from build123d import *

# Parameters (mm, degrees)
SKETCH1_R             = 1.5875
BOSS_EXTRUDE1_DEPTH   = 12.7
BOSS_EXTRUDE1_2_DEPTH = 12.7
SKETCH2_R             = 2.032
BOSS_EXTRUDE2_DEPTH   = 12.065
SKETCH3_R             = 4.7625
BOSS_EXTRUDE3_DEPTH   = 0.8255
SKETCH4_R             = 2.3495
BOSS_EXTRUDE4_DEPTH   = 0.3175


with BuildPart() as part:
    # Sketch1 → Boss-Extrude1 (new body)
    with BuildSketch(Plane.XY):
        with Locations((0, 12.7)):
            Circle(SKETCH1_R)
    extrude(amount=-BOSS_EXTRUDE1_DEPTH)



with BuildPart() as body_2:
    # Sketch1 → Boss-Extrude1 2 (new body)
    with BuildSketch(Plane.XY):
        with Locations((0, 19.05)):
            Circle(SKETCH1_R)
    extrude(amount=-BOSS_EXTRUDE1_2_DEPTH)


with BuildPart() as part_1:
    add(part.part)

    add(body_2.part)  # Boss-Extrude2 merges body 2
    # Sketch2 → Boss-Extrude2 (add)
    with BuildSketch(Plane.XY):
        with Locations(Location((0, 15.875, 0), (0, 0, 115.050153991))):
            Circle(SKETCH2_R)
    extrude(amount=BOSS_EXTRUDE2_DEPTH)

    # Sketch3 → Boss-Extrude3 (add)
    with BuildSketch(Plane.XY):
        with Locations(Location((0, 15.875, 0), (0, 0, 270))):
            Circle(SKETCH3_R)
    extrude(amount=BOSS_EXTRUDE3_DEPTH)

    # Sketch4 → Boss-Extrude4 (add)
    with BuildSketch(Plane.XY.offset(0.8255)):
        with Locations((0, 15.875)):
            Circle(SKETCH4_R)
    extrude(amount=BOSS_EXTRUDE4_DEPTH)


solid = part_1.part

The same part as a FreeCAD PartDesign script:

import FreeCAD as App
import Part
import Sketcher

V = App.Vector
Q = App.Units.Quantity

doc = App.newDocument("Part")
params = doc.addObject("Spreadsheet::Sheet", "Params")
for row, (alias, value) in enumerate([
    ("sketch1_diameter", "0.125 in"),
    ("pad1_length", "0.5 in"),
    ("sketch2_diameter", "0.125 in"),
    ("pad2_length", "0.5 in"),
    ("sketch3_diameter", "0.16 in"),
    ("pad3_length", "0.475 in"),
    ("sketch4_diameter", "0.375 in"),
    ("pad4_length", "0.0325 in"),
    ("sketch5_diameter", "0.185 in"),
    ("pad5_length", "0.0125 in"),
], start=1):
    params.set(f"A{row}", alias)
    params.set(f"B{row}", "=" + value)
    params.setAlias(f"B{row}", alias)

body = doc.addObject("PartDesign::Body", "Body")

# Sketch on XY plane
sketch1 = doc.addObject("Sketcher::SketchObject", "Sketch")
body.addObject(sketch1)
sketch1.AttachmentSupport = (doc.XY_Plane, [""])
sketch1.MapMode = "FlatFace"
sketch1.addGeometry(Part.Circle(V(0, 12.7, 0), V(0, 0, 1), 1.6), False)
sketch1.addConstraint([
    Sketcher.Constraint("PointOnObject", 0, 3, -2),
    Sketcher.Constraint("Diameter", 0, Q("0.125 in")),
    Sketcher.Constraint("DistanceY", -1, 1, 0, 3, Q("0.5 in")),
])
sketch1.setExpression("Constraints[1]", "Params.sketch1_diameter")
pad1 = doc.addObject("PartDesign::Pad", "Pad")
body.addObject(pad1)
pad1.Profile = sketch1
pad1.setExpression("Length", "Params.pad1_length")
pad1.Reversed = True
body2 = doc.addObject("PartDesign::Body", "Body001")

# Sketch on XY plane
sketch2 = doc.addObject("Sketcher::SketchObject", "Sketch001")
body2.addObject(sketch2)
sketch2.AttachmentSupport = (doc.getObject("XY_Plane001"), [""])
sketch2.MapMode = "FlatFace"
sketch2.addGeometry(Part.Circle(V(0, 19.1, 0), V(0, 0, 1), 1.6), False)
sketch2.addConstraint([
    Sketcher.Constraint("PointOnObject", 0, 3, -2),
    Sketcher.Constraint("Diameter", 0, Q("0.125 in")),
    Sketcher.Constraint("DistanceY", -1, 1, 0, 3, Q("0.75 in")),
])
sketch2.setExpression("Constraints[1]", "Params.sketch2_diameter")
pad2 = doc.addObject("PartDesign::Pad", "Pad001")
body2.addObject(pad2)
pad2.Profile = sketch2
pad2.setExpression("Length", "Params.pad2_length")
pad2.Reversed = True
body.AllowCompound = True
doc.recompute()

boolean = doc.addObject("PartDesign::Boolean", "Boolean")
body.addObject(boolean)
boolean.Type = "Fuse"
boolean.addObjects([body2])

# Sketch on XY plane
sketch3 = doc.addObject("Sketcher::SketchObject", "Sketch002")
body.addObject(sketch3)
sketch3.AttachmentSupport = (doc.XY_Plane, [""])
sketch3.MapMode = "FlatFace"
sketch3.addGeometry(Part.Circle(V(0, 15.9, 0), V(0, 0, 1), 2), False)
sketch3.addConstraint([
    Sketcher.Constraint("PointOnObject", 0, 3, -2),
    Sketcher.Constraint("Diameter", 0, Q("0.16 in")),
    Sketcher.Constraint("DistanceY", -1, 1, 0, 3, Q("0.625 in")),
])
sketch3.setExpression("Constraints[1]", "Params.sketch3_diameter")
pad3 = doc.addObject("PartDesign::Pad", "Pad002")
body.addObject(pad3)
pad3.Profile = sketch3
pad3.setExpression("Length", "Params.pad3_length")

# Sketch on XY plane
sketch4 = doc.addObject("Sketcher::SketchObject", "Sketch003")
body.addObject(sketch4)
sketch4.AttachmentSupport = (doc.XY_Plane, [""])
sketch4.MapMode = "FlatFace"
sketch4.addGeometry(Part.Circle(V(0, 15.9, 0), V(0, 0, 1), 4.8), False)
sketch4.addConstraint([
    Sketcher.Constraint("PointOnObject", 0, 3, -2),
    Sketcher.Constraint("Diameter", 0, Q("0.375 in")),
    Sketcher.Constraint("DistanceY", -1, 1, 0, 3, Q("0.625 in")),
])
sketch4.setExpression("Constraints[1]", "Params.sketch4_diameter")
pad4 = doc.addObject("PartDesign::Pad", "Pad003")
body.addObject(pad4)
pad4.Profile = sketch4
pad4.setExpression("Length", "Params.pad4_length")

# Sketch on XY plane
sketch5 = doc.addObject("Sketcher::SketchObject", "Sketch004")
body.addObject(sketch5)
sketch5.AttachmentSupport = (doc.XY_Plane, [""])
sketch5.MapMode = "FlatFace"
sketch5.AttachmentOffset = App.Placement(V(0, 0, 0.0325 * 25.4), App.Rotation())
sketch5.addGeometry(Part.Circle(V(0, 15.9, 0), V(0, 0, 1), 2.3), False)
sketch5.addConstraint([
    Sketcher.Constraint("PointOnObject", 0, 3, -2),
    Sketcher.Constraint("Diameter", 0, Q("0.185 in")),
    Sketcher.Constraint("DistanceY", -1, 1, 0, 3, Q("0.625 in")),
])
sketch5.setExpression("Constraints[1]", "Params.sketch5_diameter")
pad5 = doc.addObject("PartDesign::Pad", "Pad004")
body.addObject(pad5)
pad5.Profile = sketch5
pad5.setExpression("Length", "Params.pad5_length")

doc.recompute()
